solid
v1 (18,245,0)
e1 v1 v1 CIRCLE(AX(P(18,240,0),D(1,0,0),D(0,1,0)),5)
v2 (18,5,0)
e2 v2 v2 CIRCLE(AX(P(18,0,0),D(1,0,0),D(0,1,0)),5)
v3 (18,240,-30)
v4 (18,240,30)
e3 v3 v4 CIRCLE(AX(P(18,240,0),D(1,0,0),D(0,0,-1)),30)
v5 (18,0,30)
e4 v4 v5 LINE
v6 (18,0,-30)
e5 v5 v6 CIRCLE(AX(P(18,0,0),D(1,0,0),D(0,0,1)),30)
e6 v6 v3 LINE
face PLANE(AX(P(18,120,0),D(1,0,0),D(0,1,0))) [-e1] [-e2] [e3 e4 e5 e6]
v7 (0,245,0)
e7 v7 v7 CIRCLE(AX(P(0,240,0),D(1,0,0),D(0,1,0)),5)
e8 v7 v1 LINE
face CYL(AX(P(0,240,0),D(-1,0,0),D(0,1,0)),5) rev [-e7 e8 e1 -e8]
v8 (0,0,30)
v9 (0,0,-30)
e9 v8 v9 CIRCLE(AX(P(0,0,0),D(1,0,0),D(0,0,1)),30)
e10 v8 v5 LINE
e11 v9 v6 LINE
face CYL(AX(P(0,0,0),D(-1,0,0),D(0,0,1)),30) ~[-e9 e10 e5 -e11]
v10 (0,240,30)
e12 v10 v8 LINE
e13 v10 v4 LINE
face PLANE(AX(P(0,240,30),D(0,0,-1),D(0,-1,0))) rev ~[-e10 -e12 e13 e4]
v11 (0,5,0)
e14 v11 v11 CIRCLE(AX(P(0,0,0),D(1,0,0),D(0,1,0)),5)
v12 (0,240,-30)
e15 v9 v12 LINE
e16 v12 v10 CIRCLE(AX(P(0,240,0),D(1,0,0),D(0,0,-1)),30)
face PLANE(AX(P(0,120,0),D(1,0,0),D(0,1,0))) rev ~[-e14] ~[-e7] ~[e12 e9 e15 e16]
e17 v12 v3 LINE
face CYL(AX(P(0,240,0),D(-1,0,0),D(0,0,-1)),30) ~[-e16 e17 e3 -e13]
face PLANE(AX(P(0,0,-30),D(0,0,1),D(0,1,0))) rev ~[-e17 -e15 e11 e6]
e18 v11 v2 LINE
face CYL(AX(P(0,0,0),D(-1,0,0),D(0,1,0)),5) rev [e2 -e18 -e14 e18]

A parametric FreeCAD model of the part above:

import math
import FreeCAD as App
import Part
import Sketcher
Q = App.Units.Quantity

doc = App.newDocument("Part")
body = doc.addObject("PartDesign::Body", "Body")

sketch1 = body.newObject("Sketcher::SketchObject", "Sketch")
sketch1.AttachmentSupport = (doc.getObject("YZ_Plane"), [""])
sketch1.MapMode = "FlatFace"
sketch1.addGeometry(Part.LineSegment(App.Vector(240, 30, 0), App.Vector(0, 30, 0)), False)
sketch1.addGeometry(Part.ArcOfCircle(Part.Circle(App.Vector(0, 0, 0), App.Vector(0, 0, 1), 30), math.radians(90), math.radians(270)), False)
sketch1.addGeometry(Part.LineSegment(App.Vector(0, -30, 0), App.Vector(240, -30, 0)), False)
sketch1.addGeometry(Part.ArcOfCircle(Part.Circle(App.Vector(240, 0, 0), App.Vector(0, 0, 1), 30), math.radians(-90), math.radians(90)), False)
sketch1.addGeometry(Part.Circle(App.Vector(0, 0, 0), App.Vector(0, 0, 1), 5), False)
sketch1.addGeometry(Part.Circle(App.Vector(240, 0, 0), App.Vector(0, 0, 1), 5), False)
sketch1.addConstraint(Sketcher.Constraint("Tangent", 0, 2, 1, 1))
sketch1.addConstraint(Sketcher.Constraint("Tangent", 1, 2, 2, 1))
sketch1.addConstraint(Sketcher.Constraint("Tangent", 2, 2, 3, 1))
sketch1.addConstraint(Sketcher.Constraint("Tangent", 3, 2, 0, 1))
sketch1.addConstraint(Sketcher.Constraint("Horizontal", 0))
sketch1.addConstraint(Sketcher.Constraint("Horizontal", 2))
sketch1.addConstraint(Sketcher.Constraint("Coincident", 1, 3, -1, 1))
sketch1.addConstraint(Sketcher.Constraint("Coincident", 4, 3, -1, 1))
sketch1.addConstraint(Sketcher.Constraint("Coincident", 5, 3, 3, 3))
sketch1.addConstraint(Sketcher.Constraint("Equal", 4, 5))
sketch1.addConstraint(Sketcher.Constraint("Diameter", 4, Q("10 mm")))
sketch1.addConstraint(Sketcher.Constraint("Radius", 1, Q("30 mm")))
sketch1.addConstraint(Sketcher.Constraint("DistanceX", 0, 2, 0, 1, Q("240 mm")))
pad1 = body.newObject("PartDesign::Pad", "Pad")
pad1.Profile = sketch1
pad1.Length = 18

doc.recompute()
